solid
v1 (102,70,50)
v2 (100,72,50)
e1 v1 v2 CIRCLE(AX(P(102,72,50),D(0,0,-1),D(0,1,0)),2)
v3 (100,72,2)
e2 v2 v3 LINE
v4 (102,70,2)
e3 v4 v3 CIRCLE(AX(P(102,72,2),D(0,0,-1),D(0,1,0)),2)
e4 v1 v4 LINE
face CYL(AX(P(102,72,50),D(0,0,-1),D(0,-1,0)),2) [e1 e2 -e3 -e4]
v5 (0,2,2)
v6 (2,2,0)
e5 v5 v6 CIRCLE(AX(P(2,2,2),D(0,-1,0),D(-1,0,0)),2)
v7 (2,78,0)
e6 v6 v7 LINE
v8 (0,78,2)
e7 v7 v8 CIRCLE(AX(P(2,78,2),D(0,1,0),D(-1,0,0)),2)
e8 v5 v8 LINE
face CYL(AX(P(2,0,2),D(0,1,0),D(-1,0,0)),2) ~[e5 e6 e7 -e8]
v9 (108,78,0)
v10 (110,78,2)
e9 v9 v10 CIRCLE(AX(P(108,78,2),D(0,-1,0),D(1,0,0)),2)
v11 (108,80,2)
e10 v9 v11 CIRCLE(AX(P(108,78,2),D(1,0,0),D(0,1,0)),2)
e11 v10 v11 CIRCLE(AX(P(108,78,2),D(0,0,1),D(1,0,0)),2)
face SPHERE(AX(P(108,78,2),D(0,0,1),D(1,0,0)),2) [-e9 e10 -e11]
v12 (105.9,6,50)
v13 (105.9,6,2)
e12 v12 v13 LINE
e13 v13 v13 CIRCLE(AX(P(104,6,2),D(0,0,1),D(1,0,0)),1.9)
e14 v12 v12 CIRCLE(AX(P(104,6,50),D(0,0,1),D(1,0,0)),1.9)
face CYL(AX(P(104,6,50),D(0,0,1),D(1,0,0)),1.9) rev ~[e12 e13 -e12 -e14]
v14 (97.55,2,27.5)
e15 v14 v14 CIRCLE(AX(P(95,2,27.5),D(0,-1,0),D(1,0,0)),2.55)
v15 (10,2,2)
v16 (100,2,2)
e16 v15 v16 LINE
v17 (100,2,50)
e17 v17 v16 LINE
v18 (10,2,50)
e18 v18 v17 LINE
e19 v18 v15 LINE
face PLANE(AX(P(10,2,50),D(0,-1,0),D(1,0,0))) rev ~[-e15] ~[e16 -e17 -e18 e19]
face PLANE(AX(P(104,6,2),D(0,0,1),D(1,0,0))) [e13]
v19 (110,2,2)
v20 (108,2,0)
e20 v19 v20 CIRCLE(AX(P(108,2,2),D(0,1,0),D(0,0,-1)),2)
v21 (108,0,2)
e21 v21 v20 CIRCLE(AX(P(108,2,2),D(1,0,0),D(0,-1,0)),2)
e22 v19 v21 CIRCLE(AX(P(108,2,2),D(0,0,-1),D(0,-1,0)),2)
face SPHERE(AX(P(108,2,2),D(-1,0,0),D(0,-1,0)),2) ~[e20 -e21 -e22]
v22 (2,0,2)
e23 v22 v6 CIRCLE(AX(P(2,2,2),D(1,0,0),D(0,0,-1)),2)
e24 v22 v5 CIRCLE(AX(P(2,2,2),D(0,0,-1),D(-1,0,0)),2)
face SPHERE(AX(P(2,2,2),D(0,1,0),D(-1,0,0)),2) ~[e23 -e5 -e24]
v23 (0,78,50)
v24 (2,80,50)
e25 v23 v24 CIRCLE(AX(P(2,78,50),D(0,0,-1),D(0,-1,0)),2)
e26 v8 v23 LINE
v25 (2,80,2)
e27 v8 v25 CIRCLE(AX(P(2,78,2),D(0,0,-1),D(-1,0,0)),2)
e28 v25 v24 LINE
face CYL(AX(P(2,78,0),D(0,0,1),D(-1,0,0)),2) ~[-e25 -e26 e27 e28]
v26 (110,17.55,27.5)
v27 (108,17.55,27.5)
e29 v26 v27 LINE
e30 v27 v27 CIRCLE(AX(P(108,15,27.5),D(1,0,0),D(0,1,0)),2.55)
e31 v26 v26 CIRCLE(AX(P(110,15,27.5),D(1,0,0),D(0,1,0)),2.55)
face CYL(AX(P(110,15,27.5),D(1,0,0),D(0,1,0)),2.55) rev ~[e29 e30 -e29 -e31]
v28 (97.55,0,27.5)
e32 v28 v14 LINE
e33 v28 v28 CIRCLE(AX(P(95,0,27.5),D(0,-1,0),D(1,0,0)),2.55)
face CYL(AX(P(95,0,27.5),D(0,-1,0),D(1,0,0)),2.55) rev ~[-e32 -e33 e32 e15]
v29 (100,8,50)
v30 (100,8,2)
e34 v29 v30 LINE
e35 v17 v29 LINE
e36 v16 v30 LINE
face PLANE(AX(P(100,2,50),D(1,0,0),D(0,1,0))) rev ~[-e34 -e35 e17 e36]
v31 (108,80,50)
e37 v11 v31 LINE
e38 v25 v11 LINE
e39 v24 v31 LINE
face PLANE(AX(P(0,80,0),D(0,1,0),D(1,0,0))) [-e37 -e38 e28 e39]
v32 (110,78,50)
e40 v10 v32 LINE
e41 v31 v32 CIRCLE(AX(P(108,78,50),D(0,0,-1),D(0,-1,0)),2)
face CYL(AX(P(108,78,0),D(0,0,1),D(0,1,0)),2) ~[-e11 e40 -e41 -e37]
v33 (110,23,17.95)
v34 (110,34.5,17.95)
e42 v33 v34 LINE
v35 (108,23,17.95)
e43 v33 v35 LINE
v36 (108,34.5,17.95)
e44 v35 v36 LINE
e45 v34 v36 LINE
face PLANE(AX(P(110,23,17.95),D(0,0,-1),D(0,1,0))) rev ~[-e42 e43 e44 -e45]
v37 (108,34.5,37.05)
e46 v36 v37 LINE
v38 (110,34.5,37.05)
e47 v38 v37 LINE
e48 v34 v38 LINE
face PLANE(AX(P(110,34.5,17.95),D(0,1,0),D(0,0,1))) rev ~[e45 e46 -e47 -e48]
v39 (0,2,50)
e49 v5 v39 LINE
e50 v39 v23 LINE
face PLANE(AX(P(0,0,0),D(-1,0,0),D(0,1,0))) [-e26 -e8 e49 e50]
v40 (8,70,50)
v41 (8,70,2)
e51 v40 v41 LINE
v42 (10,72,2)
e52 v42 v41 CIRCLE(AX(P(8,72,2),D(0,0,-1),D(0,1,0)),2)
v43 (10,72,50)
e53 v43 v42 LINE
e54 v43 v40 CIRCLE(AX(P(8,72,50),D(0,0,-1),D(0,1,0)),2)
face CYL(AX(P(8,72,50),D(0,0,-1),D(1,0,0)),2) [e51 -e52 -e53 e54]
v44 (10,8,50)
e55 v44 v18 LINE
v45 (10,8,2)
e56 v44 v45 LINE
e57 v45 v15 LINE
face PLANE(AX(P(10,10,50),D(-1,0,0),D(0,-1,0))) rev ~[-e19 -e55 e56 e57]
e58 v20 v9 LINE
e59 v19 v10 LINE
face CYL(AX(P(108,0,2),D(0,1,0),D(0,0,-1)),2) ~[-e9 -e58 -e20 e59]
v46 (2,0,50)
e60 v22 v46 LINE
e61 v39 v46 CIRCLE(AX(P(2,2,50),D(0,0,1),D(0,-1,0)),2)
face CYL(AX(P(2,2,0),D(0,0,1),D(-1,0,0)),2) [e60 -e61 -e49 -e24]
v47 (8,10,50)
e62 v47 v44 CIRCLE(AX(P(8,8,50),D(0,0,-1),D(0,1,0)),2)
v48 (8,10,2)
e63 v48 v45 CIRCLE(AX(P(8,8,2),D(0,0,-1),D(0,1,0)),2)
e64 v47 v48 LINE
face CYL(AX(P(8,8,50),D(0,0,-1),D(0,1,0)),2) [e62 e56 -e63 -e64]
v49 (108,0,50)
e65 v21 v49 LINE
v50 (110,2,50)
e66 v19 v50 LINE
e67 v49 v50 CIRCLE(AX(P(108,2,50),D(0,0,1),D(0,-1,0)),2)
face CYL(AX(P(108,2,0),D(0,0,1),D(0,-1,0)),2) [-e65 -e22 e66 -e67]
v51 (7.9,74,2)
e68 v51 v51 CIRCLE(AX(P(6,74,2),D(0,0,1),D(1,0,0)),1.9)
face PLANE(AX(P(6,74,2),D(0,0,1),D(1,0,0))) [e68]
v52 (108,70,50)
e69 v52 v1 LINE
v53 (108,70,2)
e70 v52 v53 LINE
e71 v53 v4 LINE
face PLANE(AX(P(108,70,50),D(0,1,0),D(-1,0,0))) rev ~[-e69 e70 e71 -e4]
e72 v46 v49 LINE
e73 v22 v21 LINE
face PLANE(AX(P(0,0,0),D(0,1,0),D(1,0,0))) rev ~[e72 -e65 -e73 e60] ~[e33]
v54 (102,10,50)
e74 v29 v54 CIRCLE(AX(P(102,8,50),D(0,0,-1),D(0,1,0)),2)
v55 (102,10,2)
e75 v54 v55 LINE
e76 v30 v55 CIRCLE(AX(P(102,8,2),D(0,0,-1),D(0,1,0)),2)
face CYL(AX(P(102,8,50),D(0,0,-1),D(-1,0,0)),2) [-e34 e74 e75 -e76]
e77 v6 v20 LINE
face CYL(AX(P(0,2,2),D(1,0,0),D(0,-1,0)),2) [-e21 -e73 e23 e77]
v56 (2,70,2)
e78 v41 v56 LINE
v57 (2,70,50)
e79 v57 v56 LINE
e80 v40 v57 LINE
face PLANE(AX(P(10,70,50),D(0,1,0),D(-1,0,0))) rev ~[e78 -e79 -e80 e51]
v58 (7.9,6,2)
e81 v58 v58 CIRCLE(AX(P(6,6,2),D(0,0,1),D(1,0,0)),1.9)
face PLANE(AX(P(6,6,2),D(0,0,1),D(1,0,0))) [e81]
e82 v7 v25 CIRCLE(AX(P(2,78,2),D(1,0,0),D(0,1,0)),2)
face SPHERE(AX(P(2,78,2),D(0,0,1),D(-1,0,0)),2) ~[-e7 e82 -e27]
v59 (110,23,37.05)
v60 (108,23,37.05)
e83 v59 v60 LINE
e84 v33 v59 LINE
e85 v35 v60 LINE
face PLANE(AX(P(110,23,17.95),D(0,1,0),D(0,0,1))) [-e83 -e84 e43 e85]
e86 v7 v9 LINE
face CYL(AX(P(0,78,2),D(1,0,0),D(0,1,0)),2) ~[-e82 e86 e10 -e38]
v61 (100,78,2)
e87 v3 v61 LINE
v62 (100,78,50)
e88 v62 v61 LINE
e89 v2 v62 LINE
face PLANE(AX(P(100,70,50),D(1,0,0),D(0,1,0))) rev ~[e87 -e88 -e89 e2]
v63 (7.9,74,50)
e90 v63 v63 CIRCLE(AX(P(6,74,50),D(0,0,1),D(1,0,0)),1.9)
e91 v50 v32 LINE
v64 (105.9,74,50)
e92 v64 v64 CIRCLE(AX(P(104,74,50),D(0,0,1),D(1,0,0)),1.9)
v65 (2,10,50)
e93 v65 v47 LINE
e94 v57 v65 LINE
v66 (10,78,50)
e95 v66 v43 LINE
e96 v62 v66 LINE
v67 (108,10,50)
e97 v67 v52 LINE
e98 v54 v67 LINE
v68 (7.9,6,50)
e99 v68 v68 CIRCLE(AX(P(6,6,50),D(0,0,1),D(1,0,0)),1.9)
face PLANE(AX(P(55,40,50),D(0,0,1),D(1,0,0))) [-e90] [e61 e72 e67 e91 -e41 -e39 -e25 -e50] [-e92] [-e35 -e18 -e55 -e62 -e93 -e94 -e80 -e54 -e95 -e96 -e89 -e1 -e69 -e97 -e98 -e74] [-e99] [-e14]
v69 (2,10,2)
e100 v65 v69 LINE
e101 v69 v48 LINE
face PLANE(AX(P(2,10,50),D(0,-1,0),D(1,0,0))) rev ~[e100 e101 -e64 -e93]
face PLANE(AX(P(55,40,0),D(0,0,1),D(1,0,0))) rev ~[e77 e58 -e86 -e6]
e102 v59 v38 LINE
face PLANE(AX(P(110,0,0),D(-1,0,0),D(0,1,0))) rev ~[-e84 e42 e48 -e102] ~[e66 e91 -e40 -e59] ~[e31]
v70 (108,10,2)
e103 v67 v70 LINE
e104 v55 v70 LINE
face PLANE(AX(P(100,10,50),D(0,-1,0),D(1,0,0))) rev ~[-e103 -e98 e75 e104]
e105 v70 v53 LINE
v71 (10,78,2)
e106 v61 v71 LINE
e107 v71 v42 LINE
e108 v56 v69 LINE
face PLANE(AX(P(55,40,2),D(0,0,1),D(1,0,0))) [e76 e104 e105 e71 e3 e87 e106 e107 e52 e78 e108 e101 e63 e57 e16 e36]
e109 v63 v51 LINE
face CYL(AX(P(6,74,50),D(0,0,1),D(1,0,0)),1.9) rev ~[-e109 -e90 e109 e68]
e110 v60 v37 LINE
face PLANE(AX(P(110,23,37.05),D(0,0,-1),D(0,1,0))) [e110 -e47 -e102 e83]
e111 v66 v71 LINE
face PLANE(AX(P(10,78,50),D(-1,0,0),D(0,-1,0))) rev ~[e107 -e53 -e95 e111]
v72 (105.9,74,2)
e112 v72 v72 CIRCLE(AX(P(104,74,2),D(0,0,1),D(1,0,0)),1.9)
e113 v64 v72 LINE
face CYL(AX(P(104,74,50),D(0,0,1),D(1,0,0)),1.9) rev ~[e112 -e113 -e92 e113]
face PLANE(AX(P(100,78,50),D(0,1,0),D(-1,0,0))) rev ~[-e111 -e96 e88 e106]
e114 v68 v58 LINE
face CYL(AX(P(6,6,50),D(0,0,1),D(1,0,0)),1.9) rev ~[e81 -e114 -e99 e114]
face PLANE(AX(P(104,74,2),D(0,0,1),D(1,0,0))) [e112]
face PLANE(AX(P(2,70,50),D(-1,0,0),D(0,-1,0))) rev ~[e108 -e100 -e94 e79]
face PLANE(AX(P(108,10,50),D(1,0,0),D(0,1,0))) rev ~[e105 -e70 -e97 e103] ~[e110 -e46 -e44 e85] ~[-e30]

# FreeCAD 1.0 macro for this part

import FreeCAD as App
import Part
import Sketcher

V = App.Vector
Q = App.Units.Quantity


def edges_at(feature, points):
    """Names of the edges that pass closest to the given points."""
    edges = feature.Shape.Edges
    near = lambda p: min(range(len(edges)), key=lambda i: edges[i].distToShape(Part.Vertex(*p))[0])
    return sorted({f"Edge{near(p) + 1}" for p in points})


def add_polygon(sketch, points):
    """Adds a closed chain of lines whose ends are joined by coincident constraints."""
    first, n = sketch.GeometryCount, len(points)
    for a, b in zip(points, points[1:] + points[:1]):
        sketch.addGeometry(Part.LineSegment(App.Vector(*a, 0), App.Vector(*b, 0)), False)
    for i in range(n):
        sketch.addConstraint(Sketcher.Constraint("Coincident", first + i, 2, first + (i + 1) % n, 1))

doc = App.newDocument("Part")
body = doc.addObject("PartDesign::Body", "Body")

# Sketch on XY plane
sketch1 = doc.addObject("Sketcher::SketchObject", "Sketch")
body.addObject(sketch1)
sketch1.AttachmentSupport = (doc.XY_Plane, [""])
sketch1.MapMode = "FlatFace"
add_polygon(sketch1, [(0, 80), (0, 0), (110, 0), (110, 80)])  # lines 0-3
sketch1.addConstraint([
    Sketcher.Constraint("Vertical", 0),
    Sketcher.Constraint("Horizontal", 1),
    Sketcher.Constraint("Vertical", 2),
    Sketcher.Constraint("Horizontal", 3),
    Sketcher.Constraint("Coincident", 0, 2, -1, 1),
    Sketcher.Constraint("DistanceX", 1, 1, 1, 2, Q("110 mm")),
    Sketcher.Constraint("DistanceY", 0, 2, 0, 1, Q("80 mm")),
])
pad1 = doc.addObject("PartDesign::Pad", "Pad")
body.addObject(pad1)
pad1.Profile = sketch1
pad1.Length = 50

# Sketch on XY plane
sketch2 = doc.addObject("Sketcher::SketchObject", "Sketch001")
body.addObject(sketch2)
sketch2.AttachmentSupport = (doc.XY_Plane, [""])
sketch2.MapMode = "FlatFace"
sketch2.AttachmentOffset = App.Placement(V(0, 0, 50), App.Rotation())
sketch2.addGeometry(Part.Circle(V(6, 74, 0), V(0, 0, 1), 1.9), False)  # 0
sketch2.addGeometry(Part.Circle(V(104, 74, 0), V(0, 0, 1), 1.9), False)  # 1
sketch2.addGeometry(Part.Circle(V(104, 6, 0), V(0, 0, 1), 1.9), False)  # 2
sketch2.addGeometry(Part.Circle(V(6, 6, 0), V(0, 0, 1), 1.9), False)  # 3
add_polygon(sketch2, [(2, 10), (10, 10), (10, 2), (100, 2), (100, 10), (108, 10), (108, 70), (100, 70), (100, 78), (10, 78), (10, 70), (2, 70)])  # lines 4-15
sketch2.addConstraint([
    Sketcher.Constraint("Horizontal", 4),
    Sketcher.Constraint("Vertical", 5),
    Sketcher.Constraint("Horizontal", 6),
    Sketcher.Constraint("Vertical", 7),
    Sketcher.Constraint("Horizontal", 8),
    Sketcher.Constraint("Vertical", 9),
    Sketcher.Constraint("Horizontal", 10),
    Sketcher.Constraint("Vertical", 11),
    Sketcher.Constraint("Horizontal", 12),
    Sketcher.Constraint("Vertical", 13),
    Sketcher.Constraint("Horizontal", 14),
    Sketcher.Constraint("Vertical", 15),
    Sketcher.Constraint("Equal", 0, 1),
    Sketcher.Constraint("Equal", 1, 2),
    Sketcher.Constraint("Equal", 2, 3),
    Sketcher.Constraint("Horizontal", 0, 3, 1, 3),
    Sketcher.Constraint("Horizontal", 2, 3, 3, 3),
    Sketcher.Constraint("Horizontal", 4, 2, 7, 2),
    Sketcher.Constraint("Horizontal", 10, 2, 13, 2),
    Sketcher.Constraint("Vertical", 1, 3, 2, 3),
    Sketcher.Constraint("Vertical", 0, 3, 3, 3),
    Sketcher.Constraint("Vertical", 7, 2, 10, 2),
    Sketcher.Constraint("Vertical", 5, 2, 12, 2),
    Sketcher.Constraint("Equal", 4, 8),
    Sketcher.Constraint("Equal", 14, 5),
    Sketcher.Constraint("Equal", 7, 11),
    Sketcher.Constraint("Diameter", 0, Q("3.8 mm")),
    Sketcher.Constraint("DistanceX", 4, 1, 4, 2, Q("8 mm")),
    Sketcher.Constraint("DistanceX", 6, 1, 6, 2, Q("90 mm")),
    Sketcher.Constraint("DistanceY", 9, 1, 9, 2, Q("60 mm")),
    Sketcher.Constraint("DistanceX", -1, 1, 0, 3, Q("6 mm")),
    Sketcher.Constraint("DistanceY", -1, 1, 0, 3, Q("74 mm")),
    Sketcher.Constraint("DistanceX", -1, 1, 1, 3, Q("104 mm")),
    Sketcher.Constraint("DistanceY", -1, 1, 2, 3, Q("6 mm")),
    Sketcher.Constraint("DistanceX", -1, 1, 4, 2, Q("10 mm")),
    Sketcher.Constraint("DistanceY", -1, 1, 4, 2, Q("10 mm")),
])
pocket1 = doc.addObject("PartDesign::Pocket", "Pocket")
body.addObject(pocket1)
pocket1.Profile = sketch2
pocket1.Length = 48
doc.recompute()

fillet = doc.addObject("PartDesign::Fillet", "Fillet")
body.addObject(fillet)
fillet.Base = (pocket1, edges_at(pocket1, [
    (0, 80, 25),
    (0, 40, 0),
    (0, 0, 25),
    (55, 0, 0),
    (110, 0, 25),
    (110, 80, 25),
    (110, 40, 0),
    (55, 80, 0),
]))
fillet.Radius = 2
doc.recompute()

fillet2 = doc.addObject("PartDesign::Fillet", "Fillet001")
body.addObject(fillet2)
fillet2.Base = (fillet, edges_at(fillet, [
    (100, 10, 26),
    (100, 70, 26),
    (10, 70, 26),
    (10, 10, 26),
]))
fillet2.Radius = 2

# Sketch on YZ plane
sketch3 = doc.addObject("Sketcher::SketchObject", "Sketch002")
body.addObject(sketch3)
sketch3.AttachmentSupport = (doc.YZ_Plane, [""])
sketch3.MapMode = "FlatFace"
sketch3.AttachmentOffset = App.Placement(V(0, 0, 110), App.Rotation())
sketch3.addGeometry(Part.Circle(V(15, 27.5, 0), V(0, 0, 1), 2.55), False)  # 0
add_polygon(sketch3, [(23, 37.05), (23, 17.95), (34.5, 17.95), (34.5, 37.05)])  # lines 1-4
sketch3.addConstraint([
    Sketcher.Constraint("Vertical", 1),
    Sketcher.Constraint("Horizontal", 2),
    Sketcher.Constraint("Vertical", 3),
    Sketcher.Constraint("Horizontal", 4),
    Sketcher.Constraint("Diameter", 0, Q("5.1 mm")),
    Sketcher.Constraint("DistanceX", 2, 1, 2, 2, Q("11.5 mm")),
    Sketcher.Constraint("DistanceY", 1, 2, 1, 1, Q("19.1 mm")),
    Sketcher.Constraint("DistanceX", -1, 1, 0, 3, Q("15 mm")),
    Sketcher.Constraint("DistanceX", -1, 1, 1, 2, Q("23 mm")),
    Sketcher.Constraint("DistanceY", -1, 1, 0, 3, Q("27.5 mm")),
    Sketcher.Constraint("DistanceY", -1, 1, 1, 2, Q("17.95 mm")),
])
pocket2 = doc.addObject("PartDesign::Pocket", "Pocket001")
body.addObject(pocket2)
pocket2.Profile = sketch3
pocket2.Length = 5

# Sketch on XZ plane
sketch4 = doc.addObject("Sketcher::SketchObject", "Sketch003")
body.addObject(sketch4)
sketch4.AttachmentSupport = (doc.XZ_Plane, [""])
sketch4.MapMode = "FlatFace"
sketch4.addGeometry(Part.Circle(V(95, 27.5, 0), V(0, 0, 1), 2.55), False)
sketch4.addConstraint([
    Sketcher.Constraint("Diameter", 0, Q("5.1 mm")),
    Sketcher.Constraint("DistanceX", -1, 1, 0, 3, Q("95 mm")),
    Sketcher.Constraint("DistanceY", -1, 1, 0, 3, Q("27.5 mm")),
])
pocket3 = doc.addObject("PartDesign::Pocket", "Pocket002")
body.addObject(pocket3)
pocket3.Profile = sketch4
pocket3.Length = 5

doc.recompute()
